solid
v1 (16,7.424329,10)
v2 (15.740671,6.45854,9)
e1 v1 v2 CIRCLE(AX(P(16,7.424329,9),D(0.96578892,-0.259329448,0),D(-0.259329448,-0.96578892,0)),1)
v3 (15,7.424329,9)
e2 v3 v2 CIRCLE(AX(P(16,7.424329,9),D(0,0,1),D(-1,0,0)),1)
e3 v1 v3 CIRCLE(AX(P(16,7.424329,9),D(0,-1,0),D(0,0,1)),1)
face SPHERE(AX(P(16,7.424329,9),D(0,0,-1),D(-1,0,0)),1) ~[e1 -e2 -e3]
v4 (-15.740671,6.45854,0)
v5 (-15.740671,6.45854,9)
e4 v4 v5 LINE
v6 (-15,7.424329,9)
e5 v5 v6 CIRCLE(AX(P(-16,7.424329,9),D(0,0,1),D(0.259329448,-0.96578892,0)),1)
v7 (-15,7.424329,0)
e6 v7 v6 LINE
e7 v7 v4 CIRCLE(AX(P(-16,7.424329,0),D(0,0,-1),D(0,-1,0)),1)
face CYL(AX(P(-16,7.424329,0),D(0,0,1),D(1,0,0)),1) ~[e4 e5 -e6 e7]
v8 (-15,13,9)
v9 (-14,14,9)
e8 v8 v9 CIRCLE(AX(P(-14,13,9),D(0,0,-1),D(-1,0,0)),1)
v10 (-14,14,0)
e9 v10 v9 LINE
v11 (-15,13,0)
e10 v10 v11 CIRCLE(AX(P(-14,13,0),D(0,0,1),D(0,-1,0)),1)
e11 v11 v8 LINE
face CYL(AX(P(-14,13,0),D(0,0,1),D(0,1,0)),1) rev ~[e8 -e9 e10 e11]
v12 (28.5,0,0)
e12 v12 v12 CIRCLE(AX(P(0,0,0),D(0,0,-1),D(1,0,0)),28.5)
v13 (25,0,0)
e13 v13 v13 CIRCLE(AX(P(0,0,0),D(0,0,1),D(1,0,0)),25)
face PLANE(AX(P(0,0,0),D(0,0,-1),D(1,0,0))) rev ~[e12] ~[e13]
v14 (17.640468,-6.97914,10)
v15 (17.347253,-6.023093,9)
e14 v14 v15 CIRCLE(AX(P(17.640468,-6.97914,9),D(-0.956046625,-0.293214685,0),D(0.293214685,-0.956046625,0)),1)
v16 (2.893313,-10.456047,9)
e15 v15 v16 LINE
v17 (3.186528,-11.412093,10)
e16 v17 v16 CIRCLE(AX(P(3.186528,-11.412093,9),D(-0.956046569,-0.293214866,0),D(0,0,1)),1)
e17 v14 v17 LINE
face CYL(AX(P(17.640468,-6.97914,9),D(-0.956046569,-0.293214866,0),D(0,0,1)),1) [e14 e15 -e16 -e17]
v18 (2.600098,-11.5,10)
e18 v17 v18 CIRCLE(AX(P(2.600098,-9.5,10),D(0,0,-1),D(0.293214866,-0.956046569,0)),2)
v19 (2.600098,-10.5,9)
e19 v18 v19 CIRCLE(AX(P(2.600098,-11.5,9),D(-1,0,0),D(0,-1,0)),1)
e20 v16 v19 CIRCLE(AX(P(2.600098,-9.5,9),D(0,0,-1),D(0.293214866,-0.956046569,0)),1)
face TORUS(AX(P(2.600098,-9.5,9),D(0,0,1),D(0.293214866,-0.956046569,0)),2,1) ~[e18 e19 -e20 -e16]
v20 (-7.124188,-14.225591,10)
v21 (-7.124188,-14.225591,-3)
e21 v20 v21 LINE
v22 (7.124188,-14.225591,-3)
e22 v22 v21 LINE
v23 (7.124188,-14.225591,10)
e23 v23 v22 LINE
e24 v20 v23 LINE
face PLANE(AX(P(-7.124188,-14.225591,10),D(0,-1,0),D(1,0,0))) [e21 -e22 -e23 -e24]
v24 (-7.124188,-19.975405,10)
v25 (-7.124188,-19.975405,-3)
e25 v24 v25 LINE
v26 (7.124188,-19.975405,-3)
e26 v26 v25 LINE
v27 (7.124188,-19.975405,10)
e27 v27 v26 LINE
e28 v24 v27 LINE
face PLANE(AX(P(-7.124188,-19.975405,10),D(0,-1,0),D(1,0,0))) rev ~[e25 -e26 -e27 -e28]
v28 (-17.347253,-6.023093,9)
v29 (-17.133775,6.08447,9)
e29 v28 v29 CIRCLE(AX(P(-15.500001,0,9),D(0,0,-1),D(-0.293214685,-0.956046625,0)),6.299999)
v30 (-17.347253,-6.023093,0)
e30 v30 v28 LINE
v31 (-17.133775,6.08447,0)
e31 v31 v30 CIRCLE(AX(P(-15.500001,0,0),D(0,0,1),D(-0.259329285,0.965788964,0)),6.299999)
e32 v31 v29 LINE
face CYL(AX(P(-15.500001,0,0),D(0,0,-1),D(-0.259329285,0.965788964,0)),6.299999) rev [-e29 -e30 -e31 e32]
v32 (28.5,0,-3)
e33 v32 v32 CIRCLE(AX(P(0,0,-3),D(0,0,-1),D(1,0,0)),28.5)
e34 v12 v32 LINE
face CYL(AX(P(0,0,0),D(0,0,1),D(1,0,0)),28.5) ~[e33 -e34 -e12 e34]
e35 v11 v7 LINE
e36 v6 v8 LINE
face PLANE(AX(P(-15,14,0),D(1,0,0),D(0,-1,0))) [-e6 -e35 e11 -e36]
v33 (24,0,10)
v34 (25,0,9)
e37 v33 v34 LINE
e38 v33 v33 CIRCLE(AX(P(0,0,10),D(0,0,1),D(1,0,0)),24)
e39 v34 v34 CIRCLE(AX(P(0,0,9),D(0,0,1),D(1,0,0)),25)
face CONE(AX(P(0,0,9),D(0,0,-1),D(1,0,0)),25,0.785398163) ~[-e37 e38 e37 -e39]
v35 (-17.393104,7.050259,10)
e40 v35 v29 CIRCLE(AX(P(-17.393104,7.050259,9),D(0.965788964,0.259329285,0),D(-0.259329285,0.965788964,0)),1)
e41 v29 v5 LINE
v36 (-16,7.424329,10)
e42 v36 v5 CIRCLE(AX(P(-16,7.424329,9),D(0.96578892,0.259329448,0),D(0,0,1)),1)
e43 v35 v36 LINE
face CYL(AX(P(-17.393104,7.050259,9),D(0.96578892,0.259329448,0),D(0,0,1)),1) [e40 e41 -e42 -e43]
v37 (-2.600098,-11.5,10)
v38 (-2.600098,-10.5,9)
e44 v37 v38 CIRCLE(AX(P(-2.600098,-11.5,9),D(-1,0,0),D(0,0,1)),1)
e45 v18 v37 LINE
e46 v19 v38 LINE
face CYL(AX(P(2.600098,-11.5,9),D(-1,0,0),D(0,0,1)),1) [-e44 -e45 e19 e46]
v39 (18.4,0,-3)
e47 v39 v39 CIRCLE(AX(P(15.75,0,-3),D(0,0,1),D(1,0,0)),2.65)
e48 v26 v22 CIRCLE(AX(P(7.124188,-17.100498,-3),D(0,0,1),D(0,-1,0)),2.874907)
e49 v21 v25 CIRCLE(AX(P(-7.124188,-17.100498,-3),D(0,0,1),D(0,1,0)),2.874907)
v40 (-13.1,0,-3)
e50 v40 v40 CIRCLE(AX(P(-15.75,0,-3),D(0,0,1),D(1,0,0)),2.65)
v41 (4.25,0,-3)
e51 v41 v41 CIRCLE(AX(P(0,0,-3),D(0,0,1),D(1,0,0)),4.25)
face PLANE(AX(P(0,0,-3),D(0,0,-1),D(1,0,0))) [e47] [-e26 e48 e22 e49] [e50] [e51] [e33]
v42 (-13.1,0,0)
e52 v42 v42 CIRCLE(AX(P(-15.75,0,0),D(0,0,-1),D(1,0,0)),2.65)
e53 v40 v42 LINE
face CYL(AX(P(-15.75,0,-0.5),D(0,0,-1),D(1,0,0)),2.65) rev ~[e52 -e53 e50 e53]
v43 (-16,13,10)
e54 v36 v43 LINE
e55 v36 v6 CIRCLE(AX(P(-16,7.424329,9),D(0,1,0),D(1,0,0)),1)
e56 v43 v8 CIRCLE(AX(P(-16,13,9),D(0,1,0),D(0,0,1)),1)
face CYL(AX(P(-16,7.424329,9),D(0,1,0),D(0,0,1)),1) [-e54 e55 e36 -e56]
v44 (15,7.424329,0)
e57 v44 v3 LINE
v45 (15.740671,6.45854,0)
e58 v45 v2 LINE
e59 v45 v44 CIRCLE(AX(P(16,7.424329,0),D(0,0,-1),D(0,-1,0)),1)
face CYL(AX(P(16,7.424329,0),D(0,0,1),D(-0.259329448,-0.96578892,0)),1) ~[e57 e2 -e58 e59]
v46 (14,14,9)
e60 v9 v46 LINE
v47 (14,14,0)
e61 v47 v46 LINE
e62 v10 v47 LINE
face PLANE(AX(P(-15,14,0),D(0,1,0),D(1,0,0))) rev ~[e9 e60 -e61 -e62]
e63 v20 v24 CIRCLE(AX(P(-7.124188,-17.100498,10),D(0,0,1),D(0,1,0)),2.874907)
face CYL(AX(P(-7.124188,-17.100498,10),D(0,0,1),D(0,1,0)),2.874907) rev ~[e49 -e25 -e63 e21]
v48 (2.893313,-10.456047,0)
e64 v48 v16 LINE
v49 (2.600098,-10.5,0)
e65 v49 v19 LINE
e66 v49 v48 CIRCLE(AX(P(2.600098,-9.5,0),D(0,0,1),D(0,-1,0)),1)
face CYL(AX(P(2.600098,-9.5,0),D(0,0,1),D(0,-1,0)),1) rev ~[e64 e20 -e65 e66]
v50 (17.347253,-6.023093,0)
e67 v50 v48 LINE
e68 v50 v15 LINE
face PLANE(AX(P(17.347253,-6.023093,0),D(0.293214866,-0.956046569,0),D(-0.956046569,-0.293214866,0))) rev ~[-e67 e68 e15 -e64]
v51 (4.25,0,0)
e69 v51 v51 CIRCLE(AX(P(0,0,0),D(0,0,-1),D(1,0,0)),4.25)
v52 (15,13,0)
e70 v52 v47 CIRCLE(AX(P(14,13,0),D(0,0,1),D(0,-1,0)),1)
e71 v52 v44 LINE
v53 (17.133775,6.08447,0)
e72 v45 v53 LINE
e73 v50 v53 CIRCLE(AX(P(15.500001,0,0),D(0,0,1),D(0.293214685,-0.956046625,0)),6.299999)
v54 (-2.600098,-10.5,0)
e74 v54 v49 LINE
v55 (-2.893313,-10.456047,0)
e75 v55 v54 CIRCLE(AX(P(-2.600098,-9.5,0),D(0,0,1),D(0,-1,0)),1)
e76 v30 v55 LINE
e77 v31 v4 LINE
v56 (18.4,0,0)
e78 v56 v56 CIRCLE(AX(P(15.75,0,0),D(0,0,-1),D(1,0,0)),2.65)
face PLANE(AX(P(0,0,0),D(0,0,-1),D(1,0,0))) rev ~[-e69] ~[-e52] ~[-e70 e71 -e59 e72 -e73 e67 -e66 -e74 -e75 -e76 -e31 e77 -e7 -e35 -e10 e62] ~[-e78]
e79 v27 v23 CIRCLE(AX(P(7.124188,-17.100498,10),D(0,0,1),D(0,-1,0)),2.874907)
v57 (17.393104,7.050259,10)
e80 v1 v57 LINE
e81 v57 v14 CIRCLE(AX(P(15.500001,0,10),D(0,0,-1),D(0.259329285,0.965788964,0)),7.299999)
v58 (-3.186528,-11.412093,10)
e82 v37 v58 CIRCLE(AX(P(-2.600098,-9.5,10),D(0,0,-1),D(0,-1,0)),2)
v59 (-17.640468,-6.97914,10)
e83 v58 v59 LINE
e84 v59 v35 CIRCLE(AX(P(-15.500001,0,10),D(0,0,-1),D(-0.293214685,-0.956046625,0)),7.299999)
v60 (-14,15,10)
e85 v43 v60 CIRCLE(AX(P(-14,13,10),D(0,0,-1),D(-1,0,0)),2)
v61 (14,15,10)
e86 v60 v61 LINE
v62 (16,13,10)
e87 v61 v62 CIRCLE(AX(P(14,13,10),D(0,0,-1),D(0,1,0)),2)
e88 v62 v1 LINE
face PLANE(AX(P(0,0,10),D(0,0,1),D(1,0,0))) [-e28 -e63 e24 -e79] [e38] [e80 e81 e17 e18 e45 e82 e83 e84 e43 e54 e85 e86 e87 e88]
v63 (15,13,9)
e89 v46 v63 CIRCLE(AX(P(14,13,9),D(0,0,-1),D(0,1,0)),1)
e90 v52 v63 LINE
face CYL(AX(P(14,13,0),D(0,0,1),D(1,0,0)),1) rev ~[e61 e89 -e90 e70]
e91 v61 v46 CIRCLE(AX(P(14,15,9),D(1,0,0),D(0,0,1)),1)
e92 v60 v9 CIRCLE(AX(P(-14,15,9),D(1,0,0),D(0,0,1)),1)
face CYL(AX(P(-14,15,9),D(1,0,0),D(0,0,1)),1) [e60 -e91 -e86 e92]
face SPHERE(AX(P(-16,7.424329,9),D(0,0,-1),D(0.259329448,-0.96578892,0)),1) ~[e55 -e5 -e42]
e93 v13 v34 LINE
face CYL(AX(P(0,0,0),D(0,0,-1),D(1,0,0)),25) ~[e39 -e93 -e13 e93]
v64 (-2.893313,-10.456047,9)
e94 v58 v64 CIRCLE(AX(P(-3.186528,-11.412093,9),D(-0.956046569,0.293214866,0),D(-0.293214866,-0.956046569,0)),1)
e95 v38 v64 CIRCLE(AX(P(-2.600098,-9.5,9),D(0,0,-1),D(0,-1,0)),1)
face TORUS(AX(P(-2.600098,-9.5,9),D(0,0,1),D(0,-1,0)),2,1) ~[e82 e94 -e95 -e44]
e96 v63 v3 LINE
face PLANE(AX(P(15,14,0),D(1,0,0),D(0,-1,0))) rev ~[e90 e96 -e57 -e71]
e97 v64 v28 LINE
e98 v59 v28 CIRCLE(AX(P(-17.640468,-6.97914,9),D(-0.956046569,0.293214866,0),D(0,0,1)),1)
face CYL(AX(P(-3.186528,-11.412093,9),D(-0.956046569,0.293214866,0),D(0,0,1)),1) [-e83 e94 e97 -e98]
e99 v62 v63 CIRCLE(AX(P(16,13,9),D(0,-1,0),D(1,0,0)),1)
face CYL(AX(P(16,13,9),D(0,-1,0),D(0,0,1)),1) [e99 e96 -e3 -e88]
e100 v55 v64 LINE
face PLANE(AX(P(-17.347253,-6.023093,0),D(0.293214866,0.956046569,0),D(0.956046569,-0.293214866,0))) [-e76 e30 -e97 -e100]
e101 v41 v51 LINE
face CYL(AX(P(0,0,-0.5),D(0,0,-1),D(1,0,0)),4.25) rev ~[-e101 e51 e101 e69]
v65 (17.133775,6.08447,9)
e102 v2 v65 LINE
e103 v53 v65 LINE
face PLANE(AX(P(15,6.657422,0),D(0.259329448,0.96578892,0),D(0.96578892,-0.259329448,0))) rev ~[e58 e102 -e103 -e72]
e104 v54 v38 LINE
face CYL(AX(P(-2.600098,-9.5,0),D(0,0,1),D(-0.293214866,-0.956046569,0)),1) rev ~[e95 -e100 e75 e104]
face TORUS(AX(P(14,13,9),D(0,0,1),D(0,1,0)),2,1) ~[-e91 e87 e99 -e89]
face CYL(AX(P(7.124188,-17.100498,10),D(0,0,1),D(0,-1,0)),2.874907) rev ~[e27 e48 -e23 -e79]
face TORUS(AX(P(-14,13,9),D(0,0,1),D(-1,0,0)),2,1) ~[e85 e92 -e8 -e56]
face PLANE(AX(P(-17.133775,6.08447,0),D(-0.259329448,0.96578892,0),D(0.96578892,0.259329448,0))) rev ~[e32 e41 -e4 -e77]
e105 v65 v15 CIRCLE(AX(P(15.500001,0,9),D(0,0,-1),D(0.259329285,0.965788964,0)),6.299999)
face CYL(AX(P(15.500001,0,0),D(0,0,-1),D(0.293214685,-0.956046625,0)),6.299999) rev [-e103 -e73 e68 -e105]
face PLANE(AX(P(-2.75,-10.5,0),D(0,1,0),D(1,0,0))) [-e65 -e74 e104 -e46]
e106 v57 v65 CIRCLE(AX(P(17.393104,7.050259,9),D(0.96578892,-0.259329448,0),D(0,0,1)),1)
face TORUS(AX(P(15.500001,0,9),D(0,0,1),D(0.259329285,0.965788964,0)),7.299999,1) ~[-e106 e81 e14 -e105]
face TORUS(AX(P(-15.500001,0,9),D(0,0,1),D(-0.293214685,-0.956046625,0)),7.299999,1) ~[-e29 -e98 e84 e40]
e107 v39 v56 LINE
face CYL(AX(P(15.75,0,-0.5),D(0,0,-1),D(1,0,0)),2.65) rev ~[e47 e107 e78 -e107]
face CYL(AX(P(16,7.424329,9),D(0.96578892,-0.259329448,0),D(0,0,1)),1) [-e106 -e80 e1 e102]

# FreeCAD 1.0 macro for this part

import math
import FreeCAD as App
import Part
import Sketcher


def edges_at(feature, points):
    """Names of the edges that pass closest to the given points."""
    edges = feature.Shape.Edges
    near = lambda p: min(range(len(edges)), key=lambda i: edges[i].distToShape(Part.Vertex(*p))[0])
    return sorted({f"Edge{near(p) + 1}" for p in points})

doc = App.newDocument("Part")
body = doc.addObject("PartDesign::Body", "Body")

# Sketch on XY plane
sketch1 = doc.addObject("Sketcher::SketchObject", "Sketch")
body.addObject(sketch1)
sketch1.AttachmentSupport = (doc.XY_Plane, [""])
sketch1.MapMode = "FlatFace"
sketch1.addGeometry(Part.Circle(App.Vector(0, 0, 0), App.Vector(0, 0, 1), 25), False)
sketch1.addGeometry(Part.ArcOfCircle(Part.Circle(App.Vector(15.500001, 0, 0), App.Vector(0, 0, 1), 6.299999), math.radians(-72.949487), math.radians(74.969732)), False)
sketch1.addGeometry(Part.LineSegment(App.Vector(17.347253, -6.023093, 0), App.Vector(2.75, -10.5, 0)), False)
sketch1.addGeometry(Part.LineSegment(App.Vector(2.75, -10.5, 0), App.Vector(-2.75, -10.5, 0)), False)
sketch1.addGeometry(Part.LineSegment(App.Vector(-2.75, -10.5, 0), App.Vector(-17.347253, -6.023093, 0)), False)
sketch1.addGeometry(Part.ArcOfCircle(Part.Circle(App.Vector(-15.500001, 0, 0), App.Vector(0, 0, 1), 6.299999), math.radians(105.030268), math.radians(252.949487)), False)
sketch1.addGeometry(Part.LineSegment(App.Vector(-17.133775, 6.08447, 0), App.Vector(-15, 6.657422, 0)), False)
sketch1.addGeometry(Part.LineSegment(App.Vector(-15, 6.657422, 0), App.Vector(-15, 14, 0)), False)
sketch1.addGeometry(Part.LineSegment(App.Vector(-15, 14, 0), App.Vector(15, 14, 0)), False)
sketch1.addGeometry(Part.LineSegment(App.Vector(15, 14, 0), App.Vector(15, 6.657422, 0)), False)
sketch1.addGeometry(Part.LineSegment(App.Vector(15, 6.657422, 0), App.Vector(17.133775, 6.08447, 0)), False)
sketch1.addConstraint(Sketcher.Constraint("Tangent", 1, 1, 2, 1))
sketch1.addConstraint(Sketcher.Constraint("Coincident", 2, 2, 3, 1))
sketch1.addConstraint(Sketcher.Constraint("Coincident", 3, 2, 4, 1))
sketch1.addConstraint(Sketcher.Constraint("Tangent", 4, 2, 5, 2))
sketch1.addConstraint(Sketcher.Constraint("Tangent", 5, 1, 6, 1))
sketch1.addConstraint(Sketcher.Constraint("Coincident", 6, 2, 7, 1))
sketch1.addConstraint(Sketcher.Constraint("Coincident", 7, 2, 8, 1))
sketch1.addConstraint(Sketcher.Constraint("Coincident", 8, 2, 9, 1))
sketch1.addConstraint(Sketcher.Constraint("Coincident", 9, 2, 10, 1))
sketch1.addConstraint(Sketcher.Constraint("Tangent", 10, 2, 1, 2))
sketch1.addConstraint(Sketcher.Constraint("Horizontal", 3))
sketch1.addConstraint(Sketcher.Constraint("Vertical", 7))
sketch1.addConstraint(Sketcher.Constraint("Horizontal", 8))
sketch1.addConstraint(Sketcher.Constraint("Vertical", 9))
sketch1.addConstraint(Sketcher.Constraint("Coincident", 0, 3, -1, 1))
sketch1.addConstraint(Sketcher.Constraint("Equal", 1, 5))
sketch1.addConstraint(Sketcher.Constraint("Symmetric", 1, 3, 5, 3, -1, 1))
sketch1.addConstraint(Sketcher.Constraint("Symmetric", 1, 1, 4, 2, -2))
sketch1.addConstraint(Sketcher.Constraint("Symmetric", 6, 2, 9, 2, -2))
sketch1.addConstraint(Sketcher.Constraint("Diameter", 0, 50.0))
sketch1.addConstraint(Sketcher.Constraint("Radius", 1, 6.299999))
sketch1.addConstraint(Sketcher.Constraint("DistanceX", 8, 1, 8, 2, 30.0))
sketch1.addConstraint(Sketcher.Constraint("DistanceX", 3, 2, 3, 1, 5.5))
sketch1.addConstraint(Sketcher.Constraint("DistanceY", -1, 1, 7, 2, 14.0))
sketch1.addConstraint(Sketcher.Constraint("DistanceX", 5, 3, 1, 3, 31.000001))
sketch1.addConstraint(Sketcher.Constraint("DistanceY", 2, 2, -1, 1, 10.5))
sketch1.addConstraint(Sketcher.Constraint("Distance", 6, 2.20936))
pad1 = doc.addObject("PartDesign::Pad", "Pad")
body.addObject(pad1)
pad1.Profile = sketch1
pad1.Length = 10

# Sketch on XY plane
sketch2 = doc.addObject("Sketcher::SketchObject", "Sketch001")
body.addObject(sketch2)
sketch2.AttachmentSupport = (doc.XY_Plane, [""])
sketch2.MapMode = "FlatFace"
sketch2.addGeometry(Part.Circle(App.Vector(0, 0, 0), App.Vector(0, 0, 1), 28.5), False)
sketch2.addConstraint(Sketcher.Constraint("Coincident", 0, 3, -1, 1))
sketch2.addConstraint(Sketcher.Constraint("Diameter", 0, 57.0))
pad2 = doc.addObject("PartDesign::Pad", "Pad001")
body.addObject(pad2)
pad2.Profile = sketch2
pad2.Length = 3
pad2.Reversed = True

# Sketch on XY plane
sketch3 = doc.addObject("Sketcher::SketchObject", "Sketch002")
body.addObject(sketch3)
sketch3.AttachmentSupport = (doc.XY_Plane, [""])
sketch3.MapMode = "FlatFace"
sketch3.AttachmentOffset = App.Placement(App.Vector(0, 0, -0.5), App.Rotation())
sketch3.addGeometry(Part.Circle(App.Vector(0, 0, 0), App.Vector(0, 0, 1), 4.25), False)
sketch3.addGeometry(Part.Circle(App.Vector(-15.75, 0, 0), App.Vector(0, 0, 1), 2.65), False)
sketch3.addGeometry(Part.Circle(App.Vector(15.75, 0, 0), App.Vector(0, 0, 1), 2.65), False)
sketch3.addConstraint(Sketcher.Constraint("Coincident", 0, 3, -1, 1))
sketch3.addConstraint(Sketcher.Constraint("Equal", 1, 2))
sketch3.addConstraint(Sketcher.Constraint("Symmetric", 1, 3, 2, 3, -1, 1))
sketch3.addConstraint(Sketcher.Constraint("PointOnObject", 1, 3, -1))
sketch3.addConstraint(Sketcher.Constraint("Diameter", 0, 8.5))
sketch3.addConstraint(Sketcher.Constraint("Diameter", 1, 5.3))
sketch3.addConstraint(Sketcher.Constraint("DistanceX", 1, 3, 2, 3, 31.5))
pocket1 = doc.addObject("PartDesign::Pocket", "Pocket")
body.addObject(pocket1)
pocket1.Profile = sketch3
pocket1.Type = "ThroughAll"
pocket1.Midplane = True
doc.recompute()

fillet = doc.addObject("PartDesign::Fillet", "Fillet")
body.addObject(fillet)
fillet.Base = (pocket1, edges_at(pocket1, [
    (15, 6.657, 5),
    (15, 14, 5),
    (-15, 6.657, 5),
    (-15, 14, 5),
    (-2.75, -10.5, 5),
    (2.75, -10.5, 5),
]))
fillet.Radius = 1
doc.recompute()

fillet2 = doc.addObject("PartDesign::Fillet", "Fillet001")
body.addObject(fillet2)
fillet2.Base = (fillet, edges_at(fillet, [
    (0, 14, 10),
    (-15, 10.212, 10),
    (-21.799, 0.111, 10),
    (-10.12, -8.24, 10),
    (0, -10.5, 10),
    (10.12, -8.24, 10),
    (21.799, 0.111, 10),
    (15, 10.212, 10),
    (14.707, 13.707, 10),
    (15.206, 6.816, 10),
    (16.437, 6.272, 10),
    (-16.437, 6.272, 10),
    (-15.206, 6.816, 10),
    (-14.707, 13.707, 10),
    (-2.748, -10.489, 10),
    (2.748, -10.489, 10),
]))
fillet2.Radius = 1
doc.recompute()

chamfer = doc.addObject("PartDesign::Chamfer", "Chamfer")
body.addObject(chamfer)
chamfer.Base = (fillet2, edges_at(fillet2, [(-25, 0, 10)]))
chamfer.Size = 1

# Sketch on XY plane
sketch4 = doc.addObject("Sketcher::SketchObject", "Sketch003")
body.addObject(sketch4)
sketch4.AttachmentSupport = (doc.XY_Plane, [""])
sketch4.MapMode = "FlatFace"
sketch4.AttachmentOffset = App.Placement(App.Vector(0, 0, 10), App.Rotation())
sketch4.addGeometry(Part.ArcOfCircle(Part.Circle(App.Vector(-7.124188, -17.100498, 0), App.Vector(0, 0, 1), 2.874907), math.radians(90), math.radians(270)), False)
sketch4.addGeometry(Part.LineSegment(App.Vector(-7.124188, -19.975405, 0), App.Vector(7.124188, -19.975405, 0)), False)
sketch4.addGeometry(Part.ArcOfCircle(Part.Circle(App.Vector(7.124188, -17.100498, 0), App.Vector(0, 0, 1), 2.874907), math.radians(-90), math.radians(90)), False)
sketch4.addGeometry(Part.LineSegment(App.Vector(7.124188, -14.225591, 0), App.Vector(-7.124188, -14.225591, 0)), False)
sketch4.addConstraint(Sketcher.Constraint("Tangent", 0, 2, 1, 1))
sketch4.addConstraint(Sketcher.Constraint("Tangent", 1, 2, 2, 1))
sketch4.addConstraint(Sketcher.Constraint("Tangent", 2, 2, 3, 1))
sketch4.addConstraint(Sketcher.Constraint("Tangent", 3, 2, 0, 1))
sketch4.addConstraint(Sketcher.Constraint("Horizontal", 1))
sketch4.addConstraint(Sketcher.Constraint("Horizontal", 3))
sketch4.addConstraint(Sketcher.Constraint("Radius", 0, 2.874907))
sketch4.addConstraint(Sketcher.Constraint("DistanceY", 0, 3, -1, 1, 17.100498))
sketch4.addConstraint(Sketcher.Constraint("DistanceX", 1, 1, 1, 2, 14.248376))
sketch4.addConstraint(Sketcher.Constraint("DistanceX", 0, 3, -1, 1, 7.124188))
pocket2 = doc.addObject("PartDesign::Pocket", "Pocket001")
body.addObject(pocket2)
pocket2.Profile = sketch4
pocket2.Type = "ThroughAll"

doc.recompute()
